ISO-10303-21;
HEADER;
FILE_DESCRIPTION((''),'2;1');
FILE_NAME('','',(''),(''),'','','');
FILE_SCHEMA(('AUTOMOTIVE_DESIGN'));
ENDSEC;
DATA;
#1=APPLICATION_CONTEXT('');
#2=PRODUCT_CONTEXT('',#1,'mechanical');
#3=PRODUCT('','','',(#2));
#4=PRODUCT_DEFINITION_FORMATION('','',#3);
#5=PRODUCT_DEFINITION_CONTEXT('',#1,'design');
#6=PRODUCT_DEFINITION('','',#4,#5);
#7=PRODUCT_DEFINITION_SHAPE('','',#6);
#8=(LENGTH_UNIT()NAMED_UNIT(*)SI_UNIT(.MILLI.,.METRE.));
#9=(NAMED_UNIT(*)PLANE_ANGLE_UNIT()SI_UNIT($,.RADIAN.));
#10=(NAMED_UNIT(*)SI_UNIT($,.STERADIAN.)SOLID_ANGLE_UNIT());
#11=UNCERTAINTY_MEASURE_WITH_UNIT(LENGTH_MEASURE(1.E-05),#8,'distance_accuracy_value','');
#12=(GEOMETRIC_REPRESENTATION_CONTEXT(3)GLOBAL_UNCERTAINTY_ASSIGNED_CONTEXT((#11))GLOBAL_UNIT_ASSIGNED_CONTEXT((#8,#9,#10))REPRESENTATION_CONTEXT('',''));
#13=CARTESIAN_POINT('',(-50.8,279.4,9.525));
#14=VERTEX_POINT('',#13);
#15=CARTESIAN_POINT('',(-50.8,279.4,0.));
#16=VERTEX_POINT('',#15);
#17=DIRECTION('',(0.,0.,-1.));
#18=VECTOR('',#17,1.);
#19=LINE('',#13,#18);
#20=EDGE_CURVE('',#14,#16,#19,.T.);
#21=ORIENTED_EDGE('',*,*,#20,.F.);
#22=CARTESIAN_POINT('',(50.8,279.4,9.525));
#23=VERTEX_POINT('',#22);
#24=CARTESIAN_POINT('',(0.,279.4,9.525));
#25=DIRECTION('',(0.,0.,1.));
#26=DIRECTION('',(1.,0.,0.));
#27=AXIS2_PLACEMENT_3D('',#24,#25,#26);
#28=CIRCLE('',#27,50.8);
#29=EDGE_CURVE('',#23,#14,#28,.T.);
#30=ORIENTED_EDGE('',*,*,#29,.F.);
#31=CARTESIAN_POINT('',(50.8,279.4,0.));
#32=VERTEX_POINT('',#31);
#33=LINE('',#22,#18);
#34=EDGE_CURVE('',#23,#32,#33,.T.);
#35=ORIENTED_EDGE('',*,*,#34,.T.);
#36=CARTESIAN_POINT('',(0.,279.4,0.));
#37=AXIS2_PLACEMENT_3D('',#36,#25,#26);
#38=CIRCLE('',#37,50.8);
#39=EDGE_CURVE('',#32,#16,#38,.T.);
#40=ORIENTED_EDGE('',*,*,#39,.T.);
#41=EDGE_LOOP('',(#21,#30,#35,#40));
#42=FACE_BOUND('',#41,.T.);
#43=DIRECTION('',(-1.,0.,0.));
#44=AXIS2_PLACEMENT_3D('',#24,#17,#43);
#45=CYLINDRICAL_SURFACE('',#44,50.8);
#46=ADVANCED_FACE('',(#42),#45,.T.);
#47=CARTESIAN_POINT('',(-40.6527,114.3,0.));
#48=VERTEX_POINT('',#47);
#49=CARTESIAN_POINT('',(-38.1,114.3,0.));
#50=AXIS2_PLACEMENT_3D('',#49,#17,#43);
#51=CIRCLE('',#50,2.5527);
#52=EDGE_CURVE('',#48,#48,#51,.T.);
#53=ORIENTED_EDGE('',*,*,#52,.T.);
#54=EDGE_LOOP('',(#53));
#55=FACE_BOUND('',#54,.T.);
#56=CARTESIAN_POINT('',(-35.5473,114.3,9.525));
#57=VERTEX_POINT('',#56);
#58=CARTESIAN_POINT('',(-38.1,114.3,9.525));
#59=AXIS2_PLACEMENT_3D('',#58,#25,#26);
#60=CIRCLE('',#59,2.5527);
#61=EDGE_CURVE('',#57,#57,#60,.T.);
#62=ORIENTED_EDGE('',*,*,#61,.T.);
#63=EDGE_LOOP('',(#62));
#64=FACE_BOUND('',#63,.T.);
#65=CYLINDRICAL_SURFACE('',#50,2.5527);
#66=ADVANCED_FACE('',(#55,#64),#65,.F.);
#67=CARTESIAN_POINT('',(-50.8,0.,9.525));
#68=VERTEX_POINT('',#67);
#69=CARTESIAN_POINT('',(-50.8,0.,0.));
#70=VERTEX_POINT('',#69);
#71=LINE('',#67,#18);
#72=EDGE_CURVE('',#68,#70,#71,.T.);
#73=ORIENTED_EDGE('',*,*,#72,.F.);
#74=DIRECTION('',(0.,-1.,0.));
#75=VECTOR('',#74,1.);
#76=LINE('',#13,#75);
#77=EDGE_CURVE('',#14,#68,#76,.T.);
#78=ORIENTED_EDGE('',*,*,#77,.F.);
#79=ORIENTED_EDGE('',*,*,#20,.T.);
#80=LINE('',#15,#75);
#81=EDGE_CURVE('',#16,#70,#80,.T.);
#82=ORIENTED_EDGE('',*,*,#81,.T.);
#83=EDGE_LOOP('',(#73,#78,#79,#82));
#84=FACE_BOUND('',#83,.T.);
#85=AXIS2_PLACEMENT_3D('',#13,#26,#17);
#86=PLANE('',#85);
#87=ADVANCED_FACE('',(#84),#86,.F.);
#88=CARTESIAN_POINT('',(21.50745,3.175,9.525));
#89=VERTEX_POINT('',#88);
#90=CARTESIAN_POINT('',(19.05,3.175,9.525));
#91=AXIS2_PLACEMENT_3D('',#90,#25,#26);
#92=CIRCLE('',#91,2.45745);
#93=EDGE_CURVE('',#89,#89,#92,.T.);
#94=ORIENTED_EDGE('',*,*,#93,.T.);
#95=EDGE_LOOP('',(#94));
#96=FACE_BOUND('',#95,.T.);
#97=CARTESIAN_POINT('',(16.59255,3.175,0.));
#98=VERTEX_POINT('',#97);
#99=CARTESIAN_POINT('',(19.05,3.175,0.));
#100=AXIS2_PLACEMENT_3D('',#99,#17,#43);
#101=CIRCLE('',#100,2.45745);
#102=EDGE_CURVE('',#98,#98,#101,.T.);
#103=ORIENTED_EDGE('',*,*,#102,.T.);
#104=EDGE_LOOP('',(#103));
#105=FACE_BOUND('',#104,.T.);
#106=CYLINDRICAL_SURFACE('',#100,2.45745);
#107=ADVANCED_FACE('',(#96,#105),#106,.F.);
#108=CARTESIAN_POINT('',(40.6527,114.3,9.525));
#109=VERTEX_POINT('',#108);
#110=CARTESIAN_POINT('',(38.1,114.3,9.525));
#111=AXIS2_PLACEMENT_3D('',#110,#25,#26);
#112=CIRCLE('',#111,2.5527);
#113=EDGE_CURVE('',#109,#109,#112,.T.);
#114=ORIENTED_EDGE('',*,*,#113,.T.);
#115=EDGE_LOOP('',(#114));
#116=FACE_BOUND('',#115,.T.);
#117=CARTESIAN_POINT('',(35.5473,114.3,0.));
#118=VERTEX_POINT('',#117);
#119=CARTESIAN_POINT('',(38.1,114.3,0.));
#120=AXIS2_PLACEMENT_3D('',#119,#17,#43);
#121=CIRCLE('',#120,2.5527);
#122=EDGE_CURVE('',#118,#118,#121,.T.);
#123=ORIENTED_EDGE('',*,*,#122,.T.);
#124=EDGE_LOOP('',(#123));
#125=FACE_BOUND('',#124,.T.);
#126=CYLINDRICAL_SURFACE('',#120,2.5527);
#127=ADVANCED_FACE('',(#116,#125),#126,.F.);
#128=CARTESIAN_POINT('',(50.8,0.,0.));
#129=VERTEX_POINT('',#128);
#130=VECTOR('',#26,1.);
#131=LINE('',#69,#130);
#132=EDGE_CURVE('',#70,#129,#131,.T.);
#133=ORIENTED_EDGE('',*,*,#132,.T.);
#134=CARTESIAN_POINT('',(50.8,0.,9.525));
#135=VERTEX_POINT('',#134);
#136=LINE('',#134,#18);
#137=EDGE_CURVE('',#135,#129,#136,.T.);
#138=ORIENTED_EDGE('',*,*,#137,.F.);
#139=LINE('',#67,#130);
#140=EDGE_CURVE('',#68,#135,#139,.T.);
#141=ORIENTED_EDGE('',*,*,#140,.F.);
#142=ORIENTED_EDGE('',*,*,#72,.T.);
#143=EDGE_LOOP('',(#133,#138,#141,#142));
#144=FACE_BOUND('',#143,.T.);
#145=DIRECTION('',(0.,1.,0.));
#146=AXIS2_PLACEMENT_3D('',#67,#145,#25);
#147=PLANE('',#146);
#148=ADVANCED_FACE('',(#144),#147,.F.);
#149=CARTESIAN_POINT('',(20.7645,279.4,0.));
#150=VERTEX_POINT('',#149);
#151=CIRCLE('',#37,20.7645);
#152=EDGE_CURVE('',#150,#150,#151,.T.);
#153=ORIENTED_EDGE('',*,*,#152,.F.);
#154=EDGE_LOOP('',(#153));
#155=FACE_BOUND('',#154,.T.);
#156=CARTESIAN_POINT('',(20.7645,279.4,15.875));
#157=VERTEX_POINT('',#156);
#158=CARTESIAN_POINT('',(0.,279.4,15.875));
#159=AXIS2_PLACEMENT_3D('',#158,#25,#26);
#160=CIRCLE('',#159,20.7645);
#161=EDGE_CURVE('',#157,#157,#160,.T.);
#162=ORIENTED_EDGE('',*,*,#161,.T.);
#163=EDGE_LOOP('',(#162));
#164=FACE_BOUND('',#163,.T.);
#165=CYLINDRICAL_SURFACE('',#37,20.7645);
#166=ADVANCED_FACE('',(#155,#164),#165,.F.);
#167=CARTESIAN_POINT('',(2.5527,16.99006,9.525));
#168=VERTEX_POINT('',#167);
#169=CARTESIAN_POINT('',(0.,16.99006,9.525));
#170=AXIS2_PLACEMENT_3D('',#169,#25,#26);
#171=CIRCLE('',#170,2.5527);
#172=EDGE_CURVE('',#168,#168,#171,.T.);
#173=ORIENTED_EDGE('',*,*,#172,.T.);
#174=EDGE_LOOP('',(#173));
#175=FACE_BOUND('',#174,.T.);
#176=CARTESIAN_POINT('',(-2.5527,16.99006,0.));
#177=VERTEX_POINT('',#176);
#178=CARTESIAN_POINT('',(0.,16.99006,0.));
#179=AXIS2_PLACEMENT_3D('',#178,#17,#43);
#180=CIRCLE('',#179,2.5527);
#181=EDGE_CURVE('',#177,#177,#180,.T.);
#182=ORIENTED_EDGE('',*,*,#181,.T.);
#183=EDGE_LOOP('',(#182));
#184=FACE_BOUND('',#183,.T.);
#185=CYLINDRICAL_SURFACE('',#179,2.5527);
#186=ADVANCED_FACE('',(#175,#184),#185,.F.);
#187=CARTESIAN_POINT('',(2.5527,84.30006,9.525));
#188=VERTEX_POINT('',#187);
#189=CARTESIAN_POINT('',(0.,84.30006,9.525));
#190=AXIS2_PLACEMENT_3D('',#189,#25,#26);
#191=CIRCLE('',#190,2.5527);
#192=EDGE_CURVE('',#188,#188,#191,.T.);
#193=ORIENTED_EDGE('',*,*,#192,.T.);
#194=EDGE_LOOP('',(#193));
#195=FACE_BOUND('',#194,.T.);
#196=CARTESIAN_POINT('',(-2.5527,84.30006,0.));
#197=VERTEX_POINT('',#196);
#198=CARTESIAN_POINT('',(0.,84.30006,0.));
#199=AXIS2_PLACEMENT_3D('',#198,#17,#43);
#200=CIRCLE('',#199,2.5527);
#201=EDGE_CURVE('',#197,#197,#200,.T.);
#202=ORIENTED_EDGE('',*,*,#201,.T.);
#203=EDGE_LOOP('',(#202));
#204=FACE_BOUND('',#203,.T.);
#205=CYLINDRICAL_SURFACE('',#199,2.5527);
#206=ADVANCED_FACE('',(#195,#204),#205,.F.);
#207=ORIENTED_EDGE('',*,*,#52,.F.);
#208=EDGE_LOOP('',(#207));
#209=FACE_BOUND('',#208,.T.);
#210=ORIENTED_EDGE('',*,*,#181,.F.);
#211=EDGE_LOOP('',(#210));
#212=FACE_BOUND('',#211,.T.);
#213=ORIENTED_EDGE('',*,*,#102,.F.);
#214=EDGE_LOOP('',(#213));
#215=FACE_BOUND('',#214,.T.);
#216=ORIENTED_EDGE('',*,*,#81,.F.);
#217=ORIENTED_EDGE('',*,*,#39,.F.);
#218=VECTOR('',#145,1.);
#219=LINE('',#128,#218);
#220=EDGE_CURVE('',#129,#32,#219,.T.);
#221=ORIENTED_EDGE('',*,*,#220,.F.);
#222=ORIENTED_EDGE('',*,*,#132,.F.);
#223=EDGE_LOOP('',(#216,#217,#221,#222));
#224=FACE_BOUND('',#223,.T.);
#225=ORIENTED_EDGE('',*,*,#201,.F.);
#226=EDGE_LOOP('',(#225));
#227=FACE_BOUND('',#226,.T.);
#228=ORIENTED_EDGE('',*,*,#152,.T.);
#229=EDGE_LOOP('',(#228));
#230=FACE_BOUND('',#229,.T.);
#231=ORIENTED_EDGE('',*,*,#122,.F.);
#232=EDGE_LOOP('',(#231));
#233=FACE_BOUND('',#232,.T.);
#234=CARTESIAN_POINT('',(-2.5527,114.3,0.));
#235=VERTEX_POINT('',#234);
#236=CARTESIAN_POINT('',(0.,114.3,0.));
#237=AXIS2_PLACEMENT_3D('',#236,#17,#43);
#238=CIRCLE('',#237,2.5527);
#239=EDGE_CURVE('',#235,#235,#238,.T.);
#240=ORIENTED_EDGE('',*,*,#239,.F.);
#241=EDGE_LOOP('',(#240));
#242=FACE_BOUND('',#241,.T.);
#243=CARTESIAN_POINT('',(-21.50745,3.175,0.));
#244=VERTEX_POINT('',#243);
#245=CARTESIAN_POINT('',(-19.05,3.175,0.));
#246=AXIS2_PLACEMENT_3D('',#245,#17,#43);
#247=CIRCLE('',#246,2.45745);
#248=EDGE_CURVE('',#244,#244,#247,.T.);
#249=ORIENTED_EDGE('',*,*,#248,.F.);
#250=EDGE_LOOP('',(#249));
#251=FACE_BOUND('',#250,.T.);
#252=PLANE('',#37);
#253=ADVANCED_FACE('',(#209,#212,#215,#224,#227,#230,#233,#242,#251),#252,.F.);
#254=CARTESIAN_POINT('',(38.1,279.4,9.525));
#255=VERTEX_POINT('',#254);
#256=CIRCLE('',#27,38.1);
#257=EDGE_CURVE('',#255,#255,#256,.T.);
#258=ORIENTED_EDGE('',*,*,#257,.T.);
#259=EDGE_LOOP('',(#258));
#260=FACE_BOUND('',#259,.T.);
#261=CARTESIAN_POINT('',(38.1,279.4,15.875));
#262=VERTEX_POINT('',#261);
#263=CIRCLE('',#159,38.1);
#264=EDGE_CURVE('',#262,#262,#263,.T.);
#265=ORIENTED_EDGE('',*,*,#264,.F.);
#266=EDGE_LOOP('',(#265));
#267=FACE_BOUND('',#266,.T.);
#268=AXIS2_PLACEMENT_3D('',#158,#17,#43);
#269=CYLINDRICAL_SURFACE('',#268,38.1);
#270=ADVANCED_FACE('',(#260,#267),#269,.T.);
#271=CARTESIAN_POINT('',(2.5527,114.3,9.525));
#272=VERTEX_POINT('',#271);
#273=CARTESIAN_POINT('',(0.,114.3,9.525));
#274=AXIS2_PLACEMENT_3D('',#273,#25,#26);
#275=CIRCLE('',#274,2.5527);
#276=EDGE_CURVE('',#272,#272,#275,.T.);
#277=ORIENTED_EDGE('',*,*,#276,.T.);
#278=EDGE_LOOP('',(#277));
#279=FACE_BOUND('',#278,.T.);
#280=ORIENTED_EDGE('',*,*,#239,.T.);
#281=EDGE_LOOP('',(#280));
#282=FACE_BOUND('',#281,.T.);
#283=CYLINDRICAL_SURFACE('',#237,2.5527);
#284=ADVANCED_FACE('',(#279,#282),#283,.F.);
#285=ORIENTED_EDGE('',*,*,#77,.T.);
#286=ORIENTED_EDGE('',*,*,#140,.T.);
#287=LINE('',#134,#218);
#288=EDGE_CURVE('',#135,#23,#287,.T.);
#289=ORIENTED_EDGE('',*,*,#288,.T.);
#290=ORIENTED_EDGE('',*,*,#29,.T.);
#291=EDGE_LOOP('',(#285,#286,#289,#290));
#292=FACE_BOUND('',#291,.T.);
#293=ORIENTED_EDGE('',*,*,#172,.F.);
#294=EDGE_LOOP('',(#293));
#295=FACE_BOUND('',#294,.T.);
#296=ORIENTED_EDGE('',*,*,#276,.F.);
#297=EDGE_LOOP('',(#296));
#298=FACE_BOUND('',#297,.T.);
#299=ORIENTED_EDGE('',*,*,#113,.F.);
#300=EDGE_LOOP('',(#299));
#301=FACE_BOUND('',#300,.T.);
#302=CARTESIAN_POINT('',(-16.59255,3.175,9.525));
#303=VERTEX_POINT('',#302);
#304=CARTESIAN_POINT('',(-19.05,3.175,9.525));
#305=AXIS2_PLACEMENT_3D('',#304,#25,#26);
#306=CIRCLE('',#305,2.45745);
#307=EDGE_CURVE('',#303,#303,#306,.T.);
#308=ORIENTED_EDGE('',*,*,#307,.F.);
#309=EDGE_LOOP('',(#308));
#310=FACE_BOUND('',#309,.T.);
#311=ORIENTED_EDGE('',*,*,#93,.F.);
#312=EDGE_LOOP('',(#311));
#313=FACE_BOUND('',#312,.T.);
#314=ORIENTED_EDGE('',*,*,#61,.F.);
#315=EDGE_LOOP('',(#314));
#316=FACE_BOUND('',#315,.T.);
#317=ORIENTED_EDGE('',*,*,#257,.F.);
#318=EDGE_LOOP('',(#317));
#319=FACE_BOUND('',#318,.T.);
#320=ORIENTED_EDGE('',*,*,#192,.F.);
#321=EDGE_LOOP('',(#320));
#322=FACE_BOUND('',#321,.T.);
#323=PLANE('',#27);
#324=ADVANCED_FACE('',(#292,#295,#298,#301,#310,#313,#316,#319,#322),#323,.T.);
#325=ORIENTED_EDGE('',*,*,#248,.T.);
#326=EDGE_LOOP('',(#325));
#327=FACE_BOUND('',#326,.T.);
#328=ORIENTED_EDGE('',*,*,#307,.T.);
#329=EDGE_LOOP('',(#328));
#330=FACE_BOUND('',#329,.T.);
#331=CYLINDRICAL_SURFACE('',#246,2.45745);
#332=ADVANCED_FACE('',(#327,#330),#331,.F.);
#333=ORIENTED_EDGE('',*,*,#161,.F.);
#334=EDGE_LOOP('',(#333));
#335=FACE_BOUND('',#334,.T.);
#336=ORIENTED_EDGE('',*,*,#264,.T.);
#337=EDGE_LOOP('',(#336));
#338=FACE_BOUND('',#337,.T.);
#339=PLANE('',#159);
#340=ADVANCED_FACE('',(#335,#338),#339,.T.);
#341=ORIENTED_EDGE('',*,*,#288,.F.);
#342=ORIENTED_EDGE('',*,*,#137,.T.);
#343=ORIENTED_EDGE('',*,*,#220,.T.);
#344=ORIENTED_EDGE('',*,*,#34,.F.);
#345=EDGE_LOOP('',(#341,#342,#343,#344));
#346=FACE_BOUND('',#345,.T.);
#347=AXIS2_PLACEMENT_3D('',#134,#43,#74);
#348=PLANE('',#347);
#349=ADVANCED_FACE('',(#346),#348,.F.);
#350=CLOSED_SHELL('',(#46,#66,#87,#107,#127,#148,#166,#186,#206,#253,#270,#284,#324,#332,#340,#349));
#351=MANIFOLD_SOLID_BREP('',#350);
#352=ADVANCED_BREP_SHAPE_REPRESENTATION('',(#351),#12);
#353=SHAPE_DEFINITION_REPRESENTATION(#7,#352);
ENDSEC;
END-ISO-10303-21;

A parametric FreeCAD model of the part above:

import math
import FreeCAD as App
import Part
import Sketcher
from FreeCAD import Vector
Q = App.Units.Quantity

doc = App.newDocument("Part")
body = doc.addObject("PartDesign::Body", "Body")

# Sketch on XY plane
sketch1 = body.newObject("Sketcher::SketchObject", "Sketch")
sketch1.AttachmentSupport = (doc.getObject("XY_Plane"), [""])
sketch1.MapMode = "FlatFace"
sketch1.addGeometry([
    Part.LineSegment(Vector(-51, 0, 0), Vector(51, 0, 0)),
    Part.LineSegment(Vector(51, 0, 0), Vector(51, 279, 0)),
    Part.ArcOfCircle(Part.Circle(Vector(0, 279, 0), Vector(0, 0, 1), 51), math.radians(0), math.radians(180)),
    Part.LineSegment(Vector(-51, 279, 0), Vector(-51, 0, 0)),
], False)
sketch1.addConstraint([
    Sketcher.Constraint("Coincident", 0, 2, 1, 1),
    Sketcher.Constraint("Tangent", 1, 2, 2, 1),
    Sketcher.Constraint("Tangent", 2, 2, 3, 1),
    Sketcher.Constraint("Coincident", 3, 2, 0, 1),
    Sketcher.Constraint("Horizontal", 0),
    Sketcher.Constraint("Vertical", 1),
    Sketcher.Constraint("Vertical", 3),
    Sketcher.Constraint("Symmetric", 0, 2, 3, 2, -1, 1),
    Sketcher.Constraint("Radius", 2, Q("2 in")),
    Sketcher.Constraint("DistanceY", 1, 1, 1, 2, Q("11 in")),
])
pad1 = body.newObject("PartDesign::Pad", "Pad")
pad1.Profile = sketch1
pad1.Length = Q("0.375 in")

# Sketch on XY plane
sketch2 = body.newObject("Sketcher::SketchObject", "Sketch001")
sketch2.AttachmentSupport = (doc.getObject("XY_Plane"), [""])
sketch2.MapMode = "FlatFace"
sketch2.AttachmentOffset = App.Placement(Vector(0, 0, 0.375 * 25.4), App.Rotation())
sketch2.addGeometry(Part.Circle(Vector(0, 279, 0), Vector(0, 0, 1), 38), False)
sketch2.addConstraint([
    Sketcher.Constraint("PointOnObject", 0, 3, -2),
    Sketcher.Constraint("Diameter", 0, Q("3 in")),
    Sketcher.Constraint("DistanceY", -1, 1, 0, 3, Q("11 in")),
])
pad2 = body.newObject("PartDesign::Pad", "Pad001")
pad2.Profile = sketch2
pad2.Length = Q("0.25 in")

# Sketch on XY plane
sketch3 = body.newObject("Sketcher::SketchObject", "Sketch002")
sketch3.AttachmentSupport = (doc.getObject("XY_Plane"), [""])
sketch3.MapMode = "FlatFace"
sketch3.AttachmentOffset = App.Placement(Vector(0, 0, 0.625 * 25.4), App.Rotation())
sketch3.addGeometry(Part.Circle(Vector(0, 279, 0), Vector(0, 0, 1), 21), False)
sketch3.addConstraint([
    Sketcher.Constraint("PointOnObject", 0, 3, -2),
    Sketcher.Constraint("Diameter", 0, Q("1.635 in")),
    Sketcher.Constraint("DistanceY", -1, 1, 0, 3, Q("11 in")),
])
pocket1 = body.newObject("PartDesign::Pocket", "Pocket")
pocket1.Profile = sketch3
pocket1.Type = "ThroughAll"

# Sketch on XY plane
sketch4 = body.newObject("Sketcher::SketchObject", "Sketch003")
sketch4.AttachmentSupport = (doc.getObject("XY_Plane"), [""])
sketch4.MapMode = "FlatFace"
sketch4.addGeometry([
    Part.Circle(Vector(19.1, 3.2, 0), Vector(0, 0, 1), 2.5),
    Part.Circle(Vector(-19.1, 3.2, 0), Vector(0, 0, 1), 2.5),
], False)
sketch4.addConstraint([
    Sketcher.Constraint("Equal", 0, 1),
    Sketcher.Constraint("Symmetric", 0, 3, 1, 3, -2),
    Sketcher.Constraint("Diameter", 0, Q("0.1935 in")),
    Sketcher.Constraint("DistanceX", 1, 3, 0, 3, Q("1.5 in")),
    Sketcher.Constraint("DistanceY", -1, 1, 0, 3, Q("0.125 in")),
])
doc.recompute()
hole = body.newObject("PartDesign::Hole", "Hole")
hole.Profile = sketch4
hole.ThreadType = "None"
hole.Diameter = Q("0.1935 in")
hole.DepthType = "Dimension"
hole.Depth = Q("0.4 in")
hole.DrillPoint = "Angled"
hole.DrillPointAngle = 118
hole.Reversed = True

# Sketch on XY plane
sketch5 = body.newObject("Sketcher::SketchObject", "Sketch004")
sketch5.AttachmentSupport = (doc.getObject("XY_Plane"), [""])
sketch5.MapMode = "FlatFace"
sketch5.addGeometry([
    Part.Circle(Vector(0, 84.3, 0), Vector(0, 0, 1), 2.6),  # 0
    Part.Circle(Vector(0, 17, 0), Vector(0, 0, 1), 2.6),  # 1
    Part.Circle(Vector(38.1, 114.3, 0), Vector(0, 0, 1), 2.6),  # 2
    Part.Circle(Vector(0, 114.3, 0), Vector(0, 0, 1), 2.6),  # 3
    Part.Circle(Vector(-38.1, 114.3, 0), Vector(0, 0, 1), 2.6),  # 4
], False)
sketch5.addConstraint([
    Sketcher.Constraint("Equal", 0, 1),
    Sketcher.Constraint("Equal", 1, 2),
    Sketcher.Constraint("Equal", 2, 3),
    Sketcher.Constraint("Equal", 3, 4),
    Sketcher.Constraint("Symmetric", 2, 3, 4, 3, -2),
    Sketcher.Constraint("PointOnObject", 0, 3, -2),
    Sketcher.Constraint("PointOnObject", 1, 3, -2),
    Sketcher.Constraint("PointOnObject", 3, 3, -2),
    Sketcher.Constraint("Horizontal", 2, 3, 3, 3),
    Sketcher.Constraint("Diameter", 0, Q("0.201 in")),
    Sketcher.Constraint("DistanceX", 4, 3, 2, 3, Q("3 in")),
    Sketcher.Constraint("DistanceY", -1, 1, 2, 3, Q("4.5 in")),
    Sketcher.Constraint("DistanceY", 1, 3, 0, 3, Q("2.65 in")),
    Sketcher.Constraint("DistanceY", -1, 1, 0, 3, Q("3.3189 in")),
])
doc.recompute()
hole2 = body.newObject("PartDesign::Hole", "Hole001")
hole2.Profile = sketch5
hole2.ThreadType = "None"
hole2.Diameter = Q("0.201 in")
hole2.DepthType = "ThroughAll"
hole2.Reversed = True

doc.recompute()
